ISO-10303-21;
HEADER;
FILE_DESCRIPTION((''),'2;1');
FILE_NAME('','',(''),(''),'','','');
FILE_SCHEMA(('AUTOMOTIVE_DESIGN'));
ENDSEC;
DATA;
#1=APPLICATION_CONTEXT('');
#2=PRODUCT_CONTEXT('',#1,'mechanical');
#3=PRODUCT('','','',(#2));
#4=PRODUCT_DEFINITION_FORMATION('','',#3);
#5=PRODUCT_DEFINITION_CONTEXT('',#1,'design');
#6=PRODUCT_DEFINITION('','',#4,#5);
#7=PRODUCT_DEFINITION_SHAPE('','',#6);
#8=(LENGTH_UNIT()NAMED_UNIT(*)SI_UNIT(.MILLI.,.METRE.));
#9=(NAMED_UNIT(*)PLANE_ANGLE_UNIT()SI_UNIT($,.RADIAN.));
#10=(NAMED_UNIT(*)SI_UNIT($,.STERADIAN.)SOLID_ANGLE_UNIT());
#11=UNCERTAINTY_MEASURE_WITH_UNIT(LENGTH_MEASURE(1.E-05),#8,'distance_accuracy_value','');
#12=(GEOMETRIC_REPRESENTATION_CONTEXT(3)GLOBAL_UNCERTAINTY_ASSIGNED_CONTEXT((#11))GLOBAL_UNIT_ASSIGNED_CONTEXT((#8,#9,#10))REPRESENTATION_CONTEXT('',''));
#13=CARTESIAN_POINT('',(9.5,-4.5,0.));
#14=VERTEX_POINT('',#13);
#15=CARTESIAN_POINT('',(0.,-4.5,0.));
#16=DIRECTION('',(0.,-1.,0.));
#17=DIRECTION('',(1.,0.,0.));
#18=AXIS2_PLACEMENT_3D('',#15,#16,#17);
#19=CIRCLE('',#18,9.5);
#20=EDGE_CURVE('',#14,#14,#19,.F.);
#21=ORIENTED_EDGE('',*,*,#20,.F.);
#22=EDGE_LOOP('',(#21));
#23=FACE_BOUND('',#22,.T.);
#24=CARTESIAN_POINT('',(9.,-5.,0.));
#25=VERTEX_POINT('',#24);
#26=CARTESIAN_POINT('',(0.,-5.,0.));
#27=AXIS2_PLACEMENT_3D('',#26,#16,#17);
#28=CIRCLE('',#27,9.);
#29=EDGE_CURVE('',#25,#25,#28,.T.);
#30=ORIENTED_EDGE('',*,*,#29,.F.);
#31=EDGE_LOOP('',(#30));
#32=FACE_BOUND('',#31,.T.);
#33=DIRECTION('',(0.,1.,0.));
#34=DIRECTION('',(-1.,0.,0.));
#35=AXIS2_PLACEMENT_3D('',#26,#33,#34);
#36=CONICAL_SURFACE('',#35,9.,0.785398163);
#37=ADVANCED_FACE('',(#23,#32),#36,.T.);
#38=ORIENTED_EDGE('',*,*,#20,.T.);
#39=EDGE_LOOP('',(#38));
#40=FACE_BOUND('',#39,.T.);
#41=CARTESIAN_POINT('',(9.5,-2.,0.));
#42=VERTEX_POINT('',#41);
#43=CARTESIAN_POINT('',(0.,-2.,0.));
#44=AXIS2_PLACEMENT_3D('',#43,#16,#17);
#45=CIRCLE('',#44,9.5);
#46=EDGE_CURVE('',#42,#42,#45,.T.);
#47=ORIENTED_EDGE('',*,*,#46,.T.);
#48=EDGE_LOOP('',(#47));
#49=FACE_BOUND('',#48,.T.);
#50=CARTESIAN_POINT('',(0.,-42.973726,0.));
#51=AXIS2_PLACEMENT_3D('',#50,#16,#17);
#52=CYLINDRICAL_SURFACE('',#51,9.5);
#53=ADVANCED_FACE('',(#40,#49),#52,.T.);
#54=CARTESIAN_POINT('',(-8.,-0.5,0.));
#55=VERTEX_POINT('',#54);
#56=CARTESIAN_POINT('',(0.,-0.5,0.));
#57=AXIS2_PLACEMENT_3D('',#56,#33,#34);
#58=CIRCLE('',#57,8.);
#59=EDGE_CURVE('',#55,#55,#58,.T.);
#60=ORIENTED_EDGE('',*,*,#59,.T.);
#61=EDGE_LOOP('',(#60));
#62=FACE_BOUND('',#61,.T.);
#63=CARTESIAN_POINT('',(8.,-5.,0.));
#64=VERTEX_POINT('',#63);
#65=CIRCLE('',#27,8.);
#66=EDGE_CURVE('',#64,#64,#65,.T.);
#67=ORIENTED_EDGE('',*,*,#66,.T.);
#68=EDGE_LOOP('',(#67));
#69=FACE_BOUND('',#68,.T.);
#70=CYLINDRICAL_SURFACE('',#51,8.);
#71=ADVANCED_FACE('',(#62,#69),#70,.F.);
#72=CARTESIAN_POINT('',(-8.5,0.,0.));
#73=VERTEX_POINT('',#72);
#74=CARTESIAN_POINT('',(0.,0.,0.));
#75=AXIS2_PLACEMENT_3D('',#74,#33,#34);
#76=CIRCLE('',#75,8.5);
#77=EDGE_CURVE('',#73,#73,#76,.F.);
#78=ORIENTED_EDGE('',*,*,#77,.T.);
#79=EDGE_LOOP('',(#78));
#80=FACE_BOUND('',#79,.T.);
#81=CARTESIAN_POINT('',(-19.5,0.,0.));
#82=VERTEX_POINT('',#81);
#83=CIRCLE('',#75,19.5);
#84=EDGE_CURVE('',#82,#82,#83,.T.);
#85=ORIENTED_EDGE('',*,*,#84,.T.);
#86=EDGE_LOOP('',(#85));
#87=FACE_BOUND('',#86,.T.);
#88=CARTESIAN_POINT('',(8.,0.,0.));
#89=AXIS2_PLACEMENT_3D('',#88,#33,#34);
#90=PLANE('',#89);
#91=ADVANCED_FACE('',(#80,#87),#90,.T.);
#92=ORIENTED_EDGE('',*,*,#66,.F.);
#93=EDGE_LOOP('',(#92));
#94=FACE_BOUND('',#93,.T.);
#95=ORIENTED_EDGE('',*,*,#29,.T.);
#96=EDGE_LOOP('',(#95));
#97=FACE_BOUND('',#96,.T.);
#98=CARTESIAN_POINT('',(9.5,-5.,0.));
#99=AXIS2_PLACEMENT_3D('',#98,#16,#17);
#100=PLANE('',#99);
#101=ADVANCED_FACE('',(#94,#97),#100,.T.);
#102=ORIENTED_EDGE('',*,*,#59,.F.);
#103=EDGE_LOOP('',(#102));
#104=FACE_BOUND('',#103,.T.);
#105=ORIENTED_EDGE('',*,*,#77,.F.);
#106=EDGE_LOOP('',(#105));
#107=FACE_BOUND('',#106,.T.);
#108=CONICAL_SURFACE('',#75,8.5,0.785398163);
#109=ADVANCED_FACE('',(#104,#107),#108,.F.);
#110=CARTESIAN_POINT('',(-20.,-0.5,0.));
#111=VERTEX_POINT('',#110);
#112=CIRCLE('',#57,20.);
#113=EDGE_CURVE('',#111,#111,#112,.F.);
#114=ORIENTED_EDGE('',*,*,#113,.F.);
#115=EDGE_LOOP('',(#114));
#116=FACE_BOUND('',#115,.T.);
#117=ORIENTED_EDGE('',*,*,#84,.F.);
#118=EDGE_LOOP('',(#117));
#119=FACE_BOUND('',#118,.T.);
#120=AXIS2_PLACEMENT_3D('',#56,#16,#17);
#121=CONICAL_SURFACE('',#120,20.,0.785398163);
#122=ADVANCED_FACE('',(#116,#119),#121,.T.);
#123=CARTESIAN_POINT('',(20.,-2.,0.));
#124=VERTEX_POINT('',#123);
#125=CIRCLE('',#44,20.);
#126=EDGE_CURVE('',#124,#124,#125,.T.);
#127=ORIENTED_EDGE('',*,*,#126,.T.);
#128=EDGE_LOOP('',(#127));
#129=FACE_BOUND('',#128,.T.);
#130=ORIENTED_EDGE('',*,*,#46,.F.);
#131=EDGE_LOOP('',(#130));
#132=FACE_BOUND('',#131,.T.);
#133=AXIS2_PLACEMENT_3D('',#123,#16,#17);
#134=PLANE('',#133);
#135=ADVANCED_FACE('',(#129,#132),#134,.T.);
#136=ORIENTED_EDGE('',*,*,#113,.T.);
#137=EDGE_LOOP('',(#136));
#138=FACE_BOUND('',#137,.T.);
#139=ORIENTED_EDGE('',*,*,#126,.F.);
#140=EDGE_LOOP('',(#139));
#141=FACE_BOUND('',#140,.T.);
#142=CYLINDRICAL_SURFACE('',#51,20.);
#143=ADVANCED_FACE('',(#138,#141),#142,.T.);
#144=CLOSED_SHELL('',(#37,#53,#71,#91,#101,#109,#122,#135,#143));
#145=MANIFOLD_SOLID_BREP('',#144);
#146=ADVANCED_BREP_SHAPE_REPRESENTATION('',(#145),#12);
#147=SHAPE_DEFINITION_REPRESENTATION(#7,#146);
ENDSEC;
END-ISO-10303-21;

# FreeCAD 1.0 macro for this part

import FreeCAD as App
import Part
import Sketcher
from FreeCAD import Vector


def edges_at(feature, points):
    """Names of the edges that pass closest to the given points."""
    edges = feature.Shape.Edges
    near = lambda p: min(range(len(edges)), key=lambda i: edges[i].distToShape(Part.Vertex(*p))[0])
    return sorted({f"Edge{near(p) + 1}" for p in points})

doc = App.newDocument("Part")
body = doc.addObject("PartDesign::Body", "Body")

# Sketch on XY plane
sketch1 = body.newObject("Sketcher::SketchObject", "Sketch")
sketch1.AttachmentSupport = (doc.getObject("XY_Plane"), [""])
sketch1.MapMode = "FlatFace"
sketch1.addGeometry(Part.LineSegment(Vector(20, 0, 0), Vector(8, 0, 0)), False)
sketch1.addGeometry(Part.LineSegment(Vector(8, 0, 0), Vector(8, -5, 0)), False)
sketch1.addGeometry(Part.LineSegment(Vector(8, -5, 0), Vector(9.5, -5, 0)), False)
sketch1.addGeometry(Part.LineSegment(Vector(9.5, -5, 0), Vector(9.5, -2, 0)), False)
sketch1.addGeometry(Part.LineSegment(Vector(9.5, -2, 0), Vector(20, -2, 0)), False)
sketch1.addGeometry(Part.LineSegment(Vector(20, -2, 0), Vector(20, 0, 0)), False)
sketch1.addConstraint(Sketcher.Constraint("Coincident", 0, 2, 1, 1))
sketch1.addConstraint(Sketcher.Constraint("Coincident", 1, 2, 2, 1))
sketch1.addConstraint(Sketcher.Constraint("Coincident", 2, 2, 3, 1))
sketch1.addConstraint(Sketcher.Constraint("Coincident", 3, 2, 4, 1))
sketch1.addConstraint(Sketcher.Constraint("Coincident", 4, 2, 5, 1))
sketch1.addConstraint(Sketcher.Constraint("Coincident", 5, 2, 0, 1))
sketch1.addConstraint(Sketcher.Constraint("Horizontal", 0))
sketch1.addConstraint(Sketcher.Constraint("Vertical", 1))
sketch1.addConstraint(Sketcher.Constraint("Horizontal", 2))
sketch1.addConstraint(Sketcher.Constraint("Vertical", 3))
sketch1.addConstraint(Sketcher.Constraint("Horizontal", 4))
sketch1.addConstraint(Sketcher.Constraint("Vertical", 5))
sketch1.addConstraint(Sketcher.Constraint("PointOnObject", 0, 2, -1))
sketch1.addConstraint(Sketcher.Constraint("DistanceX", 0, 2, 0, 1, 12.0))
sketch1.addConstraint(Sketcher.Constraint("DistanceY", 1, 2, 1, 1, 5.0))
sketch1.addConstraint(Sketcher.Constraint("DistanceY", 3, 1, 3, 2, 3.0))
sketch1.addConstraint(Sketcher.Constraint("DistanceX", 2, 1, 2, 2, 1.5))
sketch1.addConstraint(Sketcher.Constraint("DistanceX", -1, 1, 0, 2, 8.0))
revolution = body.newObject("PartDesign::Revolution", "Revolution")
revolution.Profile = sketch1
revolution.ReferenceAxis = (sketch1, ["V_Axis"])
revolution.Angle = 360
doc.recompute()

chamfer = body.newObject("PartDesign::Chamfer", "Chamfer")
chamfer.Base = (revolution, edges_at(revolution, [(-9.5, -5, 0), (-20, 0, 0), (-8, 0, 0)]))
chamfer.Size = 0.5

doc.recompute()
